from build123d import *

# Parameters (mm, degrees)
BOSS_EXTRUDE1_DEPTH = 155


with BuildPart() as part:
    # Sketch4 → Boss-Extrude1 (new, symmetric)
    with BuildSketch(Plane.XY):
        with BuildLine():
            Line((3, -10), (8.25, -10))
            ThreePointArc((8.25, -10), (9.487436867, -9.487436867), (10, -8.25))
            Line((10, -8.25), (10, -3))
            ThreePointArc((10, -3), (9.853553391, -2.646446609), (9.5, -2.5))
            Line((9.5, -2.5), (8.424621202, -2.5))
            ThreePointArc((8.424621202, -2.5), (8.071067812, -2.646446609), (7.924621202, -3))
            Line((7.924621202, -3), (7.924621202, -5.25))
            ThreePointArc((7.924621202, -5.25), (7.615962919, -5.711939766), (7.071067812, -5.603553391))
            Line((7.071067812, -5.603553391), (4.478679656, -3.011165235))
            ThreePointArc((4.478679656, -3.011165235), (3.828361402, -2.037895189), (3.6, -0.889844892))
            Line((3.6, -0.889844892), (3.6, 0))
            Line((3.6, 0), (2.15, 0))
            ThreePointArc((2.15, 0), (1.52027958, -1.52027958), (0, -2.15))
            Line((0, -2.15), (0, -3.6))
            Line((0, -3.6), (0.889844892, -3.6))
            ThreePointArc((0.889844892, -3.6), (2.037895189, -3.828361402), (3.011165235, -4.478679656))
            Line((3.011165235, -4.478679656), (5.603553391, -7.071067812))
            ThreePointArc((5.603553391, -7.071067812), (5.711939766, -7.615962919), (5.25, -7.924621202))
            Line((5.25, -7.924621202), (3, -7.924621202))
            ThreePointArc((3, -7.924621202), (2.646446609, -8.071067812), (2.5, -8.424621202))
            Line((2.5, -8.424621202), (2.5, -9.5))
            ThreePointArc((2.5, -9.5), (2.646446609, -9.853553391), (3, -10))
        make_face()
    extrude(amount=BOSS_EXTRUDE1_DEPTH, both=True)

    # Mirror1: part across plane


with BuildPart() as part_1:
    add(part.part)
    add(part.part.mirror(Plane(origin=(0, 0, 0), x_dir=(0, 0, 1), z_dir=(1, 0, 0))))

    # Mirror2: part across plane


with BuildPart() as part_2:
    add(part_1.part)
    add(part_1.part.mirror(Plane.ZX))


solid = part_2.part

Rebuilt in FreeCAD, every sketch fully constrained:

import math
import FreeCAD as App
import Part
import Sketcher
from FreeCAD import Vector

doc = App.newDocument("Part")
body = doc.addObject("PartDesign::Body", "Body")

# Sketch on XY plane
sketch1 = body.newObject("Sketcher::SketchObject", "Sketch")
sketch1.AttachmentSupport = (doc.getObject("XY_Plane"), [""])
sketch1.MapMode = "FlatFace"
sketch1.addGeometry([
    Part.LineSegment(Vector(3, -10, 0), Vector(8.25, -10, 0)),  # 0
    Part.ArcOfCircle(Part.Circle(Vector(8.25, -8.25, 0), Vector(0, 0, 1), 1.75), math.radians(-90), math.radians(0)),  # 1
    Part.LineSegment(Vector(10, -8.25, 0), Vector(10, -3, 0)),  # 2
    Part.ArcOfCircle(Part.Circle(Vector(9.5, -3, 0), Vector(0, 0, 1), 0.5), math.radians(0), math.radians(90)),  # 3
    Part.LineSegment(Vector(9.5, -2.5, 0), Vector(8.42, -2.5, 0)),  # 4
    Part.ArcOfCircle(Part.Circle(Vector(8.42, -3, 0), Vector(0, 0, 1), 0.5), math.radians(90), math.radians(180)),  # 5
    Part.LineSegment(Vector(7.92, -3, 0), Vector(7.92, -5.25, 0)),  # 6
    Part.ArcOfCircle(Part.Circle(Vector(7.42, -5.25, 0), Vector(0, 0, 1), 0.5), math.radians(-135), math.radians(0)),  # 7
    Part.LineSegment(Vector(7.07, -5.6, 0), Vector(4.48, -3.01, 0)),  # 8
    Part.ArcOfCircle(Part.Circle(Vector(6.6, -0.89, 0), Vector(0, 0, 1), 3), math.radians(180), math.radians(225)),  # 9
    Part.LineSegment(Vector(3.6, -0.89, 0), Vector(3.6, 0, 0)),  # 10
    Part.LineSegment(Vector(3.6, 0, 0), Vector(2.15, 0, 0)),  # 11
    Part.ArcOfCircle(Part.Circle(Vector(0, 0, 0), Vector(0, 0, 1), 2.15), math.radians(-90), math.radians(0)),  # 12
    Part.LineSegment(Vector(0, -2.15, 0), Vector(0, -3.6, 0)),  # 13
    Part.LineSegment(Vector(0, -3.6, 0), Vector(0.89, -3.6, 0)),  # 14
    Part.ArcOfCircle(Part.Circle(Vector(0.89, -6.6, 0), Vector(0, 0, 1), 3), math.radians(45), math.radians(90)),  # 15
    Part.LineSegment(Vector(3.01, -4.48, 0), Vector(5.6, -7.07, 0)),  # 16
    Part.ArcOfCircle(Part.Circle(Vector(5.25, -7.42, 0), Vector(0, 0, 1), 0.5), math.radians(-90), math.radians(45)),  # 17
    Part.LineSegment(Vector(5.25, -7.92, 0), Vector(3, -7.92, 0)),  # 18
    Part.ArcOfCircle(Part.Circle(Vector(3, -8.42, 0), Vector(0, 0, 1), 0.5), math.radians(90), math.radians(180)),  # 19
    Part.LineSegment(Vector(2.5, -8.42, 0), Vector(2.5, -9.5, 0)),  # 20
    Part.ArcOfCircle(Part.Circle(Vector(3, -9.5, 0), Vector(0, 0, 1), 0.5), math.radians(180), math.radians(270)),  # 21
], False)
sketch1.addConstraint([
    Sketcher.Constraint("Tangent", 0, 2, 1, 1),
    Sketcher.Constraint("Tangent", 1, 2, 2, 1),
    Sketcher.Constraint("Tangent", 2, 2, 3, 1),
    Sketcher.Constraint("Tangent", 3, 2, 4, 1),
    Sketcher.Constraint("Tangent", 4, 2, 5, 1),
    Sketcher.Constraint("Tangent", 5, 2, 6, 1),
    Sketcher.Constraint("Tangent", 6, 2, 7, 2),
    Sketcher.Constraint("Tangent", 7, 1, 8, 1),
    Sketcher.Constraint("Tangent", 8, 2, 9, 2),
    Sketcher.Constraint("Tangent", 9, 1, 10, 1),
    Sketcher.Constraint("Coincident", 10, 2, 11, 1),
    Sketcher.Constraint("Coincident", 11, 2, 12, 2),
    Sketcher.Constraint("Coincident", 12, 1, 13, 1),
    Sketcher.Constraint("Coincident", 13, 2, 14, 1),
    Sketcher.Constraint("Tangent", 14, 2, 15, 2),
    Sketcher.Constraint("Tangent", 15, 1, 16, 1),
    Sketcher.Constraint("Tangent", 16, 2, 17, 2),
    Sketcher.Constraint("Tangent", 17, 1, 18, 1),
    Sketcher.Constraint("Tangent", 18, 2, 19, 1),
    Sketcher.Constraint("Tangent", 19, 2, 20, 1),
    Sketcher.Constraint("Tangent", 20, 2, 21, 1),
    Sketcher.Constraint("Tangent", 21, 2, 0, 1),
    Sketcher.Constraint("Horizontal", 0),
    Sketcher.Constraint("Vertical", 2),
    Sketcher.Constraint("Horizontal", 4),
    Sketcher.Constraint("Vertical", 6),
    Sketcher.Constraint("Vertical", 10),
    Sketcher.Constraint("Horizontal", 11),
    Sketcher.Constraint("Vertical", 13),
    Sketcher.Constraint("Horizontal", 14),
    Sketcher.Constraint("Horizontal", 18),
    Sketcher.Constraint("Vertical", 20),
    Sketcher.Constraint("Coincident", 12, 3, -1, 1),
    Sketcher.Constraint("Equal", 3, 5),
    Sketcher.Constraint("Equal", 5, 7),
    Sketcher.Constraint("Equal", 9, 15),
    Sketcher.Constraint("Equal", 7, 17),
    Sketcher.Constraint("Equal", 17, 19),
    Sketcher.Constraint("Equal", 19, 21),
    Sketcher.Constraint("PointOnObject", 10, 2, -1),
    Sketcher.Constraint("PointOnObject", 12, 1, -2),
    Sketcher.Constraint("Parallel", 8, 16),
    Sketcher.Constraint("Equal", 0, 2),
    Sketcher.Constraint("Equal", 18, 6),
    Sketcher.Constraint("Equal", 14, 10),
    Sketcher.Constraint("Equal", 11, 13),
    Sketcher.Constraint("Equal", 4, 20),
    Sketcher.Constraint("Equal", 8, 16),
    Sketcher.Constraint("Radius", 9, 3.0),
    Sketcher.Constraint("Radius", 3, 0.5),
    Sketcher.Constraint("Radius", 1, 1.75),
    Sketcher.Constraint("Radius", 12, 2.15),
    Sketcher.Constraint("DistanceY", 3, 3, -1, 1, 3.0),
    Sketcher.Constraint("DistanceY", 0, 2, -1, 1, 10.0),
    Sketcher.Constraint("DistanceY", 1, 3, 7, 3, 3.0),
    Sketcher.Constraint("DistanceX", 11, 2, 11, 1, 1.45),
    Sketcher.Constraint("DistanceX", 4, 2, 4, 1, 1.075379),
])
pad1 = body.newObject("PartDesign::Pad", "Pad")
pad1.Profile = sketch1
pad1.Length = 310
pad1.Midplane = True
body2 = doc.addObject("PartDesign::Body", "Body001")
doc.recompute()

body2.BaseFeature = body
doc.recompute()

mirroring = doc.addObject("Part::Mirroring", "Mirroring")
mirroring.Source = body
mirroring.Base = Vector(0, 0, 0)
mirroring.Normal = Vector(1, 0, 0)
body3 = doc.addObject("PartDesign::Body", "Body002")
body3.BaseFeature = mirroring
boolean = body2.newObject("PartDesign::Boolean", "Boolean")
boolean.Type = "Fuse"
boolean.addObjects([body3])
doc.recompute()
body4 = doc.addObject("PartDesign::Body", "Body003")
doc.recompute()

body4.BaseFeature = body2
doc.recompute()

mirroring2 = doc.addObject("Part::Mirroring", "Mirroring001")
mirroring2.Source = body2
mirroring2.Base = Vector(0, 0, 0)
mirroring2.Normal = Vector(0, 1, 0)
body5 = doc.addObject("PartDesign::Body", "Body004")
body5.BaseFeature = mirroring2
boolean2 = body4.newObject("PartDesign::Boolean", "Boolean001")
boolean2.Type = "Fuse"
boolean2.addObjects([body5])
doc.recompute()
mirroring.Visibility = False
mirroring2.Visibility = False

doc.recompute()
